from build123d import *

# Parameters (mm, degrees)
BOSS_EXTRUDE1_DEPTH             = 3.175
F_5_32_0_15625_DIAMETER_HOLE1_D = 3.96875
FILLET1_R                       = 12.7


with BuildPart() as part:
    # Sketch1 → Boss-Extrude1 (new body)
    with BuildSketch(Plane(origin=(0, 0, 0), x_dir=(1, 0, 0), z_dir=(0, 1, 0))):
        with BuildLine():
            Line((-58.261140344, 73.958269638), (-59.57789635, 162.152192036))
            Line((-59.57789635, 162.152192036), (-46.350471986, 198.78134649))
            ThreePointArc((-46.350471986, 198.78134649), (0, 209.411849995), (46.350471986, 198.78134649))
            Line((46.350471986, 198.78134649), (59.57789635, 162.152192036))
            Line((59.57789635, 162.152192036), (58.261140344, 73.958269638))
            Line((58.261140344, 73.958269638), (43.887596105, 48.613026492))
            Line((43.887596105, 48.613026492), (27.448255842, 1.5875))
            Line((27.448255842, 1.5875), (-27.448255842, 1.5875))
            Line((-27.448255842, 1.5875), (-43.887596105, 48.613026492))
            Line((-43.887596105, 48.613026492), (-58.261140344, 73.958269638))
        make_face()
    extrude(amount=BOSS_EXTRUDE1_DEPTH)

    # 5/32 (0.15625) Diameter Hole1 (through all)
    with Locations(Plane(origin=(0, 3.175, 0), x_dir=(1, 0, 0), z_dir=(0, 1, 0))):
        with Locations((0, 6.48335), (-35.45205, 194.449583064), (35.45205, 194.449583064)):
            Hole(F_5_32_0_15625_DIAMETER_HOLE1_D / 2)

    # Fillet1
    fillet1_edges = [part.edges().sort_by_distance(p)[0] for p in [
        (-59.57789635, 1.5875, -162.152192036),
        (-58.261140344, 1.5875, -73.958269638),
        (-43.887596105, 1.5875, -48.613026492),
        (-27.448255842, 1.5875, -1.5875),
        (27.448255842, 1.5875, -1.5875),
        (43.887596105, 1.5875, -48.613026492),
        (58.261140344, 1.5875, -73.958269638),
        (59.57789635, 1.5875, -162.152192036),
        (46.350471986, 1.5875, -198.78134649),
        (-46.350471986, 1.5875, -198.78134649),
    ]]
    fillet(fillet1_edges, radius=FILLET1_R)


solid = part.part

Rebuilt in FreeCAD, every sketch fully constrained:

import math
import FreeCAD as App
import Part
import Sketcher
from FreeCAD import Vector
Q = App.Units.Quantity


def edges_at(feature, points):
    """Names of the edges that pass closest to the given points."""
    edges = feature.Shape.Edges
    near = lambda p: min(range(len(edges)), key=lambda i: edges[i].distToShape(Part.Vertex(*p))[0])
    return sorted({f"Edge{near(p) + 1}" for p in points})

doc = App.newDocument("Part")
body = doc.addObject("PartDesign::Body", "Body")

# Sketch on XZ plane
sketch1 = body.newObject("Sketcher::SketchObject", "Sketch")
sketch1.AttachmentSupport = (doc.getObject("XZ_Plane"), [""])
sketch1.MapMode = "FlatFace"
sketch1.addGeometry([
    Part.LineSegment(Vector(-59.577896, -162.152192, 0), Vector(-58.26114, -73.95827, 0)),  # 0
    Part.LineSegment(Vector(-58.26114, -73.95827, 0), Vector(-43.887596, -48.613026, 0)),  # 1
    Part.LineSegment(Vector(-43.887596, -48.613026, 0), Vector(-27.448256, -1.5875, 0)),  # 2
    Part.LineSegment(Vector(-27.448256, -1.5875, 0), Vector(27.448256, -1.5875, 0)),  # 3
    Part.LineSegment(Vector(27.448256, -1.5875, 0), Vector(43.887596, -48.613026, 0)),  # 4
    Part.LineSegment(Vector(43.887596, -48.613026, 0), Vector(58.26114, -73.95827, 0)),  # 5
    Part.LineSegment(Vector(58.26114, -73.95827, 0), Vector(59.577896, -162.152192, 0)),  # 6
    Part.LineSegment(Vector(59.577896, -162.152192, 0), Vector(46.350472, -198.781346, 0)),  # 7
    Part.ArcOfCircle(Part.Circle(Vector(0, -103.04935, 0), Vector(0, 0, 1), 106.3625), math.radians(-115.83483), math.radians(-64.16517)),  # 8
    Part.LineSegment(Vector(-46.350472, -198.781346, 0), Vector(-59.577896, -162.152192, 0)),  # 9
], False)
sketch1.addConstraint([
    Sketcher.Constraint("Coincident", 0, 2, 1, 1),
    Sketcher.Constraint("Coincident", 1, 2, 2, 1),
    Sketcher.Constraint("Coincident", 2, 2, 3, 1),
    Sketcher.Constraint("Coincident", 3, 2, 4, 1),
    Sketcher.Constraint("Coincident", 4, 2, 5, 1),
    Sketcher.Constraint("Coincident", 5, 2, 6, 1),
    Sketcher.Constraint("Coincident", 6, 2, 7, 1),
    Sketcher.Constraint("Coincident", 7, 2, 8, 2),
    Sketcher.Constraint("Coincident", 8, 1, 9, 1),
    Sketcher.Constraint("Coincident", 9, 2, 0, 1),
    Sketcher.Constraint("Horizontal", 3),
    Sketcher.Constraint("Symmetric", 1, 2, 4, 2, -2),
    Sketcher.Constraint("Symmetric", 0, 2, 5, 2, -2),
    Sketcher.Constraint("Symmetric", 7, 2, 8, 1, -2),
    Sketcher.Constraint("Symmetric", 6, 2, 9, 2, -2),
    Sketcher.Constraint("Equal", 2, 4),
    Sketcher.Constraint("Radius", 8, Q("4.1875 in")),
    Sketcher.Constraint("DistanceY", 2, 2, -1, 1, Q("0.0625 in")),
    Sketcher.Constraint("DistanceX", 3, 1, 3, 2, 54.896512),
    Sketcher.Constraint("DistanceX", 4, 2, 6, 2, 15.6903),
    Sketcher.Constraint("Distance", 0, 88.203752),
    Sketcher.Constraint("DistanceY", 8, 3, -1, 1, 103.04935),
    Sketcher.Constraint("DistanceX", 0, 2, -1, 1, 58.26114),
    Sketcher.Constraint("DistanceY", 0, 2, -1, 1, 73.95827),
    Sketcher.Constraint("DistanceX", -1, 1, 7, 2, 46.350472),
    Sketcher.Constraint("DistanceX", 1, 2, 2, 2, 16.43934),
    Sketcher.Constraint("DistanceY", 7, 2, 4, 2, 150.16832),
])
pad1 = body.newObject("PartDesign::Pad", "Pad")
pad1.Profile = sketch1
pad1.Length = Q("0.125 in")
pad1.Reversed = True

# Sketch on XZ plane
sketch2 = body.newObject("Sketcher::SketchObject", "Sketch001")
sketch2.AttachmentSupport = (doc.getObject("XZ_Plane"), [""])
sketch2.MapMode = "FlatFace"
sketch2.AttachmentOffset = App.Placement(Vector(0, 0, -0.125 * 25.4), App.Rotation())
sketch2.addGeometry([
    Part.Circle(Vector(0, -6.48335, 0), Vector(0, 0, 1), 1.984375),
    Part.Circle(Vector(-35.45205, -194.449583, 0), Vector(0, 0, 1), 1.984375),
    Part.Circle(Vector(35.45205, -194.449583, 0), Vector(0, 0, 1), 1.984375),
], False)
sketch2.addConstraint([
    Sketcher.Constraint("Equal", 0, 1),
    Sketcher.Constraint("Equal", 1, 2),
    Sketcher.Constraint("Symmetric", 1, 3, 2, 3, -2),
    Sketcher.Constraint("PointOnObject", 0, 3, -2),
    Sketcher.Constraint("Diameter", 0, Q("0.15625 in")),
    Sketcher.Constraint("DistanceX", 1, 3, 2, 3, Q("2.7915 in")),
    Sketcher.Constraint("DistanceY", 0, 3, -1, 1, 6.48335),
    Sketcher.Constraint("DistanceY", 1, 3, -1, 1, 194.449583),
])
doc.recompute()
hole = body.newObject("PartDesign::Hole", "Hole")
hole.Profile = sketch2
hole.ThreadType = "None"
hole.Diameter = Q("0.15625 in")
hole.DepthType = "ThroughAll"
hole.Reversed = True
doc.recompute()

fillet = body.newObject("PartDesign::Fillet", "Fillet")
fillet.Base = (hole, edges_at(hole, [
    (-59.578, 1.587, -162.152),
    (-58.261, 1.587, -73.958),
    (-43.888, 1.587, -48.613),
    (-27.448, 1.587, -1.587),
    (27.448, 1.587, -1.587),
    (43.888, 1.587, -48.613),
    (58.261, 1.587, -73.958),
    (59.578, 1.587, -162.152),
    (46.35, 1.587, -198.781),
    (-46.35, 1.587, -198.781),
]))
fillet.Radius = Q("0.5 in")

doc.recompute()
